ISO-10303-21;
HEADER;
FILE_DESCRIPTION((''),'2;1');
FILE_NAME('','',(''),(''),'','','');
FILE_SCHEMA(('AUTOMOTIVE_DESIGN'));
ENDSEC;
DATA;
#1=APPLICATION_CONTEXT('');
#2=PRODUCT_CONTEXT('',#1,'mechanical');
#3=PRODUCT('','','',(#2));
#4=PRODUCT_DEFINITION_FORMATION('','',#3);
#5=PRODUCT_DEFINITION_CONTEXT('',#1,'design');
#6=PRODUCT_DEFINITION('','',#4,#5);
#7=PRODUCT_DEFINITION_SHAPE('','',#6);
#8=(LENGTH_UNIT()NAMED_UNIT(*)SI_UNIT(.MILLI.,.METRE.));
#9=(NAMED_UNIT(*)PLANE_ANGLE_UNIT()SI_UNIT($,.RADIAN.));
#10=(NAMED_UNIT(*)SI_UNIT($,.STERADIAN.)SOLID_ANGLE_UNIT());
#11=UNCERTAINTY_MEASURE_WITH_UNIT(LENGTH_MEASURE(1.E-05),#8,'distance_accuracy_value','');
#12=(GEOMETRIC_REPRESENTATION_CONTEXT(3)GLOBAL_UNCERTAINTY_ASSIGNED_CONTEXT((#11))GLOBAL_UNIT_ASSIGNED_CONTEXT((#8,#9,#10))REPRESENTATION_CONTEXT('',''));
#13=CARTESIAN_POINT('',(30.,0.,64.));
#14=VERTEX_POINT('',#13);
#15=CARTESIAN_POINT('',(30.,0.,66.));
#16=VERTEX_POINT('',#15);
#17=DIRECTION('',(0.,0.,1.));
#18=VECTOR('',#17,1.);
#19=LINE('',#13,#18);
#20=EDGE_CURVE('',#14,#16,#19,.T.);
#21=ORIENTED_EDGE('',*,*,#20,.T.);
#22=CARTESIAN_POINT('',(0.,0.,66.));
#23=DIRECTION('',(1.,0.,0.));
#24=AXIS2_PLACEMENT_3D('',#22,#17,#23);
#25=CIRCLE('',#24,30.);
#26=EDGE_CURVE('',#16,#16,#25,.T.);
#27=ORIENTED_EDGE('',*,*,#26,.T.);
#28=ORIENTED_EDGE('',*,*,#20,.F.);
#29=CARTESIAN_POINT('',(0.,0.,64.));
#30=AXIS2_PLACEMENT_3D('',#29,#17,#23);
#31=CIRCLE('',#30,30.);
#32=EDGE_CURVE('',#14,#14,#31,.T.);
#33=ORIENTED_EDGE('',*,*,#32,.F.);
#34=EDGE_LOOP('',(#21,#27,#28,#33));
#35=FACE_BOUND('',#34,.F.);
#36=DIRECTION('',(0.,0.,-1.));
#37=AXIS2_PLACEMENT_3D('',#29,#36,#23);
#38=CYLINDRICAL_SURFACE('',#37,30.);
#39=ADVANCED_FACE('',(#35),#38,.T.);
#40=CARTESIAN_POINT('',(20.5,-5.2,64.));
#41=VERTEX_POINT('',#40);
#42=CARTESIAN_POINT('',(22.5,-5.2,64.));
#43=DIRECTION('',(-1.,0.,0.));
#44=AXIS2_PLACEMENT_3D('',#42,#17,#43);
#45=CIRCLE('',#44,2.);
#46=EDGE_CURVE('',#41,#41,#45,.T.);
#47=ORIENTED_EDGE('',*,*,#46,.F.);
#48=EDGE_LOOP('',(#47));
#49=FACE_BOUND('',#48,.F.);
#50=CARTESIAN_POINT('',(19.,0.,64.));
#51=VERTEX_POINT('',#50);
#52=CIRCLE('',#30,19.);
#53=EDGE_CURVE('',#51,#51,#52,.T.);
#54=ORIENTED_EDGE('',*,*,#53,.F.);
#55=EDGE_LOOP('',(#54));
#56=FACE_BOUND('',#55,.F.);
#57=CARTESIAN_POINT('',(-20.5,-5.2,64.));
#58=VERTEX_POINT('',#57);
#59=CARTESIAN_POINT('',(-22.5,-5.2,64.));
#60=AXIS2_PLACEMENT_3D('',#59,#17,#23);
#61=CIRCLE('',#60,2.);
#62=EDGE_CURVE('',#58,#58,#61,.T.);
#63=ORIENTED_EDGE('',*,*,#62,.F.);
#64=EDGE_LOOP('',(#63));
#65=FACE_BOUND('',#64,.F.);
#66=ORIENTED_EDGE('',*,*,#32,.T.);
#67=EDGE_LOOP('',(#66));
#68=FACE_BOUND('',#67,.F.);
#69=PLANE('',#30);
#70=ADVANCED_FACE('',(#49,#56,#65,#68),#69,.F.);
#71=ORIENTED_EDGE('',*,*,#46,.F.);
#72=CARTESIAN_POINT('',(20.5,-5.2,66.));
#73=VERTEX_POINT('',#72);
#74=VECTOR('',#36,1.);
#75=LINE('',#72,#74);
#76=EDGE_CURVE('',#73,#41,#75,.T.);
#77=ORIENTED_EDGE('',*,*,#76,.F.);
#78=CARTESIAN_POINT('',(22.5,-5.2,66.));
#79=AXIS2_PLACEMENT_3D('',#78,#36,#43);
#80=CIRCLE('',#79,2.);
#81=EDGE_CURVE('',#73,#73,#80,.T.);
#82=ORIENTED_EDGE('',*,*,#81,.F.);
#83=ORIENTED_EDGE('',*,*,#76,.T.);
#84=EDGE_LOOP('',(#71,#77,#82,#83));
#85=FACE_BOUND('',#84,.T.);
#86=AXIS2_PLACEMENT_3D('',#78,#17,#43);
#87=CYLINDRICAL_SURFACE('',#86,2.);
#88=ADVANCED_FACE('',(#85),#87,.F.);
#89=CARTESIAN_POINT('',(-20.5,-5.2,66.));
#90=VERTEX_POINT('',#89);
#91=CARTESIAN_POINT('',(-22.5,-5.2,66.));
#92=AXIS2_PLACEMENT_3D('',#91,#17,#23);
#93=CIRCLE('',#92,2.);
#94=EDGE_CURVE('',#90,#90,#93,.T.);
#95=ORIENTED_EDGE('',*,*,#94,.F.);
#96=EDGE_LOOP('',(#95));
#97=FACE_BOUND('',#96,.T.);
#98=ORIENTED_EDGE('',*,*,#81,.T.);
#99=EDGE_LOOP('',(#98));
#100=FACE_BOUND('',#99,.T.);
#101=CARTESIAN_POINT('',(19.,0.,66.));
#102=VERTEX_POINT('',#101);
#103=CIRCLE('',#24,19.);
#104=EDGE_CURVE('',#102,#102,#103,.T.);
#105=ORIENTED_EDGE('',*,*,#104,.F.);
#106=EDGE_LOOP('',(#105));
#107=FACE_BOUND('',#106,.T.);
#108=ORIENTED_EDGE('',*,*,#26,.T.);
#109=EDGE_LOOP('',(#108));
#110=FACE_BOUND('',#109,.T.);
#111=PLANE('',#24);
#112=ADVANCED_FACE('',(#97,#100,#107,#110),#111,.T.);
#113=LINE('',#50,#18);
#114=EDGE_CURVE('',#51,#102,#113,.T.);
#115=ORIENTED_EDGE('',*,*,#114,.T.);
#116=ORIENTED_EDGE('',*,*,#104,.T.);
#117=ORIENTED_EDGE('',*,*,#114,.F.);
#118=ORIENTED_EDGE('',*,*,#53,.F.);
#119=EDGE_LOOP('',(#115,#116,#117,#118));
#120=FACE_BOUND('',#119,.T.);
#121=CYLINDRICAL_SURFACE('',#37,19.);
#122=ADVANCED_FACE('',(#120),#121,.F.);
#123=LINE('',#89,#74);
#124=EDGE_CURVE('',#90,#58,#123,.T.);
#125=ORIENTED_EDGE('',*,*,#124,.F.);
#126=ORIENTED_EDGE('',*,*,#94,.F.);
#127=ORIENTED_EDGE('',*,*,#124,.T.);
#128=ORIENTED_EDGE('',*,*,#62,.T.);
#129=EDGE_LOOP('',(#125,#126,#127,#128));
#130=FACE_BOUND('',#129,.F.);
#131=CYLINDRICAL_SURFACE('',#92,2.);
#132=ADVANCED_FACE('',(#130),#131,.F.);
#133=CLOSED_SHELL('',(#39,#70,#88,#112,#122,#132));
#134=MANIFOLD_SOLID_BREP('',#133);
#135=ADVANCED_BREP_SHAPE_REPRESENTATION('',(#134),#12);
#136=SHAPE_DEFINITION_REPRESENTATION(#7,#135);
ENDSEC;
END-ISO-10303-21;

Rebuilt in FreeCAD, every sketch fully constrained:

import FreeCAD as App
import Part
import Sketcher
from FreeCAD import Vector
Q = App.Units.Quantity

doc = App.newDocument("Part")
params = doc.addObject("Spreadsheet::Sheet", "Params")
for row, (alias, value) in enumerate([
    ("sketch1_diameter", "60 mm"),
    ("sketch1_diameter2", "38 mm"),
    ("pad1_length", "2 mm"),
    ("sketch2_diameter", "4 mm"),
], start=1):
    params.set(f"A{row}", alias)
    params.set(f"B{row}", "=" + value)
    params.setAlias(f"B{row}", alias)

body = doc.addObject("PartDesign::Body", "Body")

# Sketch on XY plane
sketch1 = doc.addObject("Sketcher::SketchObject", "Sketch")
body.addObject(sketch1)
sketch1.AttachmentSupport = (doc.XY_Plane, [""])
sketch1.MapMode = "FlatFace"
sketch1.addGeometry([
    Part.Circle(Vector(0, 0, 0), Vector(0, 0, 1), 30),
    Part.Circle(Vector(0, 0, 0), Vector(0, 0, 1), 19),
], False)
sketch1.addConstraint([
    Sketcher.Constraint("Coincident", 0, 3, -1, 1),
    Sketcher.Constraint("Coincident", 1, 3, -1, 1),
    Sketcher.Constraint("Diameter", 0, Q("60 mm")),
    Sketcher.Constraint("Diameter", 1, Q("38 mm")),
])
sketch1.setExpression("Constraints[2]", "Params.sketch1_diameter")
sketch1.setExpression("Constraints[3]", "Params.sketch1_diameter2")
pad1 = doc.addObject("PartDesign::Pad", "Pad")
body.addObject(pad1)
pad1.Profile = sketch1
pad1.setExpression("Length", "Params.pad1_length")

# Sketch on XY plane
sketch2 = doc.addObject("Sketcher::SketchObject", "Sketch001")
body.addObject(sketch2)
sketch2.AttachmentSupport = (doc.XY_Plane, [""])
sketch2.MapMode = "FlatFace"
sketch2.AttachmentOffset = App.Placement(Vector(0, 0, 2), App.Rotation())
sketch2.addGeometry(Part.Circle(Vector(-22.5, -5.2, 0), Vector(0, 0, 1), 2), False)
sketch2.addConstraint([
    Sketcher.Constraint("Diameter", 0, Q("4 mm")),
    Sketcher.Constraint("DistanceX", 0, 3, -1, 1, Q("22.5 mm")),
    Sketcher.Constraint("DistanceY", 0, 3, -1, 1, Q("5.2 mm")),
])
sketch2.setExpression("Constraints[0]", "Params.sketch2_diameter")
pocket1 = doc.addObject("PartDesign::Pocket", "Pocket")
body.addObject(pocket1)
pocket1.Profile = sketch2
pocket1.Type = "ThroughAll"
doc.recompute()

mirrored = doc.addObject("PartDesign::Mirrored", "Mirrored")
body.addObject(mirrored)
mirrored.Originals = [pocket1]
mirrored.MirrorPlane = (doc.YZ_Plane, [""])
body.Tip = mirrored
body2 = doc.addObject("PartDesign::Body", "Body001")
doc.recompute()

body.Placement = App.Placement(Vector(0, 0, 64), App.Rotation(Vector(0, 0, 1), 0))
boolean = doc.addObject("PartDesign::Boolean", "Boolean")
body2.addObject(boolean)
boolean.Type = "Fuse"
boolean.addObjects([body])

doc.recompute()
